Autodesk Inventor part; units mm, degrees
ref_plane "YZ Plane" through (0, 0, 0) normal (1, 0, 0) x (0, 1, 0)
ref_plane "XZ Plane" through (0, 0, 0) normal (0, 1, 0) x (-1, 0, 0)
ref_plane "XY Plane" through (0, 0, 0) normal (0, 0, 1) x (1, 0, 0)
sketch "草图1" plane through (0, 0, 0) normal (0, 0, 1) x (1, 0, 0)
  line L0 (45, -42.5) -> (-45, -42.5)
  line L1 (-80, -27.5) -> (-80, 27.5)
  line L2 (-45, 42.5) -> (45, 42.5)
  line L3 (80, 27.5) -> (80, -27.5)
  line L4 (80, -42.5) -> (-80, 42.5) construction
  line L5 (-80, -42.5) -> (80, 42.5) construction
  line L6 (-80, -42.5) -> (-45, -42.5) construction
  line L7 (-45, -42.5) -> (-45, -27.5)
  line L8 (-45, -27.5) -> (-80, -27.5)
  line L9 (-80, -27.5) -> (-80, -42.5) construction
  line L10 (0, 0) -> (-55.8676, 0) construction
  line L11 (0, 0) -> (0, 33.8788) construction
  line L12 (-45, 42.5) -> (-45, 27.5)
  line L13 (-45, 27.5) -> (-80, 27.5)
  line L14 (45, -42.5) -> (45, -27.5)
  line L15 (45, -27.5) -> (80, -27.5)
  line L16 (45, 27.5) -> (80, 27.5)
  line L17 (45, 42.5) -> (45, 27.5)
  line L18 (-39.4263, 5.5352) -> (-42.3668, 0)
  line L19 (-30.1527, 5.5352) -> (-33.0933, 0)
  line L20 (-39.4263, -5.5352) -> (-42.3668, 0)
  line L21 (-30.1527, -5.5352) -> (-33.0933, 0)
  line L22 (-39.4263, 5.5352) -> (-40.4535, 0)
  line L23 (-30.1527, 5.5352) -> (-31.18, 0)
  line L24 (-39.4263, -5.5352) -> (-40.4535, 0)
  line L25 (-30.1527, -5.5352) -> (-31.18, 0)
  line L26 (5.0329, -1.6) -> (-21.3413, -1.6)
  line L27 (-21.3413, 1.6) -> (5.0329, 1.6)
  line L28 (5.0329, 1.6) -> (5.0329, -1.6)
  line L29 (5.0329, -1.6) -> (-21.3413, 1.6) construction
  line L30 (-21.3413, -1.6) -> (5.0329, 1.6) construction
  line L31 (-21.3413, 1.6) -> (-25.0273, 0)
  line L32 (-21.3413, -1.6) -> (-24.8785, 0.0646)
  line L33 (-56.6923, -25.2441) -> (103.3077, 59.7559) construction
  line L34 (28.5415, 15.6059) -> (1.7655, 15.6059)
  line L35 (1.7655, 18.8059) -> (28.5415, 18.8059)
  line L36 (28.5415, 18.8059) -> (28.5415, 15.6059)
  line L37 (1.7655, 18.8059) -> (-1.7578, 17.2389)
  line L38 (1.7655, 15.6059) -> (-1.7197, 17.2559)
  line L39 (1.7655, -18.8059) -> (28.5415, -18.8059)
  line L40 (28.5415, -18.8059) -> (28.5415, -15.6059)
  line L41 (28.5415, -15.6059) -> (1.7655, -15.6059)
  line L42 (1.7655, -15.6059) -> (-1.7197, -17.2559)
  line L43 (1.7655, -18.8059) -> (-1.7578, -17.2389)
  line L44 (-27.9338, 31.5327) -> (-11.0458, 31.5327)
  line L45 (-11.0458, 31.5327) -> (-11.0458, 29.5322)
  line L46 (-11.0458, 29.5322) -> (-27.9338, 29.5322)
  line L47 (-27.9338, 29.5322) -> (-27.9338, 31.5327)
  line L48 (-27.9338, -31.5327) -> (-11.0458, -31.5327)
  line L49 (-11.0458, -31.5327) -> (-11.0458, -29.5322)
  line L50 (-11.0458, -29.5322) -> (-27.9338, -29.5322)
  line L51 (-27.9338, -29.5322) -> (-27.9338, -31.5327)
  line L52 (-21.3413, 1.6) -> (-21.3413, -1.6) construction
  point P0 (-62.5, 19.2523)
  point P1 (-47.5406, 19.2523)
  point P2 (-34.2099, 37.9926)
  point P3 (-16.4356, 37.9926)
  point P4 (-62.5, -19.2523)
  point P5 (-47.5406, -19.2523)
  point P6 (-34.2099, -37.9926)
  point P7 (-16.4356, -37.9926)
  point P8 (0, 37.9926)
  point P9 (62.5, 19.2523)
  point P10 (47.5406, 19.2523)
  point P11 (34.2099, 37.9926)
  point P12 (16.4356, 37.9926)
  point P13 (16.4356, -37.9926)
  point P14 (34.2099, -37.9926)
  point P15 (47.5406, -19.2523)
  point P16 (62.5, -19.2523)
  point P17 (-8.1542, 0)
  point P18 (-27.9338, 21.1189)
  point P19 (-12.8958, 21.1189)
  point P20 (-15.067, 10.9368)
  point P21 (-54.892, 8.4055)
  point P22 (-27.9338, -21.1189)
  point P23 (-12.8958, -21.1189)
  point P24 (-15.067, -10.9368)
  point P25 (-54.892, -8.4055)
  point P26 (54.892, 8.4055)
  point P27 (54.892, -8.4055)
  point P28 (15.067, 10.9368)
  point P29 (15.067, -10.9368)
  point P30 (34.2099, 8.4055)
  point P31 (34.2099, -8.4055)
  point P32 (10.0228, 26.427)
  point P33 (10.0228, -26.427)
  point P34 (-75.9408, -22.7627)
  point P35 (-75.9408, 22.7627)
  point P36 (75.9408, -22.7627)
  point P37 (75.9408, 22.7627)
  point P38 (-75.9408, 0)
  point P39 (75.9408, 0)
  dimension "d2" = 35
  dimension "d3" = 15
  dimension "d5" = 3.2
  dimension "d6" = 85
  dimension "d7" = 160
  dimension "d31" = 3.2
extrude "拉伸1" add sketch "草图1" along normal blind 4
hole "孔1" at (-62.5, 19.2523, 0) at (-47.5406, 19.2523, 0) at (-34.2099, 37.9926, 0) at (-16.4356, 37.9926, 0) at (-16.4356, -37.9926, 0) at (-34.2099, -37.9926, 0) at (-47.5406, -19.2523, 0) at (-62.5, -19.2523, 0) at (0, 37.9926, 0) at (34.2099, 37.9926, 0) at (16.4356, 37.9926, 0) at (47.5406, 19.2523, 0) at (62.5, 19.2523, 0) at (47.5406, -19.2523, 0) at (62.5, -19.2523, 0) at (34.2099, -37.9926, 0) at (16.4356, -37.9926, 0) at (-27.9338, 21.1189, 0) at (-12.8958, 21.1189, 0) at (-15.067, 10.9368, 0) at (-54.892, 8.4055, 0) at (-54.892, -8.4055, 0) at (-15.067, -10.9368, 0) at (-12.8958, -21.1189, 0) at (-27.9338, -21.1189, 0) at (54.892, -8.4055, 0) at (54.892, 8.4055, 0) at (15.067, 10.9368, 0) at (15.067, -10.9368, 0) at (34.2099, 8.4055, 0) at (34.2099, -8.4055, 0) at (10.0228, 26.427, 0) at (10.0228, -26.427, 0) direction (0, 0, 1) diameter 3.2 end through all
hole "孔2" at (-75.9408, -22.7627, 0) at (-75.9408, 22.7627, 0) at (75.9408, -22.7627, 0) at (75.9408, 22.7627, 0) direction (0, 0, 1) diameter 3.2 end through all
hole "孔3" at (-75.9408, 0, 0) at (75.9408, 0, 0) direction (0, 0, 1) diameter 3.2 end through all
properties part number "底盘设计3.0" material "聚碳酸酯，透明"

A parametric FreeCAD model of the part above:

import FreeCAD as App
import Part
import Sketcher

V = App.Vector
Q = App.Units.Quantity


def add_polygon(sketch, points):
    """Adds a closed chain of lines whose ends are joined by coincident constraints."""
    first, n = sketch.GeometryCount, len(points)
    for a, b in zip(points, points[1:] + points[:1]):
        sketch.addGeometry(Part.LineSegment(App.Vector(*a, 0), App.Vector(*b, 0)), False)
    for i in range(n):
        sketch.addConstraint(Sketcher.Constraint("Coincident", first + i, 2, first + (i + 1) % n, 1))

doc = App.newDocument("Part")
body = doc.addObject("PartDesign::Body", "Body")

sketch1 = body.newObject("Sketcher::SketchObject", "Sketch")
sketch1.AttachmentSupport = (doc.getObject("XY_Plane"), [""])
sketch1.MapMode = "FlatFace"
add_polygon(sketch1, [(-45, -42.5), (45, -42.5), (45, -27.5), (80, -27.5), (80, 27.5), (45, 27.5), (45, 42.5), (-45, 42.5), (-45, 27.5), (-80, 27.5), (-80, -27.5), (-45, -27.5)])
add_polygon(sketch1, [(-11, -31.5), (-27.9, -31.5), (-27.9, -29.5), (-11, -29.5)])
add_polygon(sketch1, [(28.5, -18.8), (1.8, -18.8), (-1.7, -17.3), (1.8, -15.6), (28.5, -15.6)])
add_polygon(sketch1, [(-42.4, 0), (-39.4, 5.5), (-40.5, 0), (-39.4, -5.5)])
add_polygon(sketch1, [(-33.1, 0), (-30.2, 5.5), (-31.2, 0), (-30.2, -5.5)])
add_polygon(sketch1, [(5, 1.6), (5, -1.6), (-21.3, -1.6), (-24.9, 0.1), (-21.3, 1.6)])
add_polygon(sketch1, [(-27.9, 29.5), (-27.9, 31.5), (-11, 31.5), (-11, 29.5)])
add_polygon(sketch1, [(28.5, 18.8), (28.5, 15.6), (1.8, 15.6), (-1.7, 17.3), (1.8, 18.8)])
sketch1.addConstraint(Sketcher.Constraint("Horizontal", 0))
sketch1.addConstraint(Sketcher.Constraint("Vertical", 1))
sketch1.addConstraint(Sketcher.Constraint("Horizontal", 2))
sketch1.addConstraint(Sketcher.Constraint("Vertical", 3))
sketch1.addConstraint(Sketcher.Constraint("Horizontal", 4))
sketch1.addConstraint(Sketcher.Constraint("Vertical", 5))
sketch1.addConstraint(Sketcher.Constraint("Horizontal", 6))
sketch1.addConstraint(Sketcher.Constraint("Vertical", 7))
sketch1.addConstraint(Sketcher.Constraint("Horizontal", 8))
sketch1.addConstraint(Sketcher.Constraint("Vertical", 9))
sketch1.addConstraint(Sketcher.Constraint("Horizontal", 10))
sketch1.addConstraint(Sketcher.Constraint("Vertical", 11))
sketch1.addConstraint(Sketcher.Constraint("Horizontal", 12))
sketch1.addConstraint(Sketcher.Constraint("Vertical", 13))
sketch1.addConstraint(Sketcher.Constraint("Horizontal", 14))
sketch1.addConstraint(Sketcher.Constraint("Vertical", 15))
sketch1.addConstraint(Sketcher.Constraint("Horizontal", 16))
sketch1.addConstraint(Sketcher.Constraint("Horizontal", 19))
sketch1.addConstraint(Sketcher.Constraint("Vertical", 20))
sketch1.addConstraint(Sketcher.Constraint("Vertical", 29))
sketch1.addConstraint(Sketcher.Constraint("Horizontal", 30))
sketch1.addConstraint(Sketcher.Constraint("Horizontal", 33))
sketch1.addConstraint(Sketcher.Constraint("Vertical", 34))
sketch1.addConstraint(Sketcher.Constraint("Horizontal", 35))
sketch1.addConstraint(Sketcher.Constraint("Vertical", 36))
sketch1.addConstraint(Sketcher.Constraint("Horizontal", 37))
sketch1.addConstraint(Sketcher.Constraint("Vertical", 38))
sketch1.addConstraint(Sketcher.Constraint("Horizontal", 39))
sketch1.addConstraint(Sketcher.Constraint("Horizontal", 42))
sketch1.addConstraint(Sketcher.Constraint("Symmetric", 0, 2, 6, 2, -1, 1))
sketch1.addConstraint(Sketcher.Constraint("Symmetric", 2, 2, 8, 2, -1, 1))
sketch1.addConstraint(Sketcher.Constraint("Symmetric", 4, 2, 10, 2, -1, 1))
sketch1.addConstraint(Sketcher.Constraint("Symmetric", 4, 2, 7, 2, -2))
sketch1.addConstraint(Sketcher.Constraint("Symmetric", 21, 2, 23, 2, -1))
sketch1.addConstraint(Sketcher.Constraint("Symmetric", 25, 2, 27, 2, -1))
sketch1.addConstraint(Sketcher.Constraint("Symmetric", 30, 2, 32, 2, -1))
sketch1.addConstraint(Sketcher.Constraint("Symmetric", 12, 2, 34, 2, -1))
sketch1.addConstraint(Sketcher.Constraint("Symmetric", 14, 2, 36, 2, -1))
sketch1.addConstraint(Sketcher.Constraint("Symmetric", 19, 2, 38, 2, -1))
sketch1.addConstraint(Sketcher.Constraint("Symmetric", 17, 2, 40, 2, -1))
sketch1.addConstraint(Sketcher.Constraint("Symmetric", 16, 2, 41, 2, -1))
sketch1.addConstraint(Sketcher.Constraint("PointOnObject", 22, 2, -1))
sketch1.addConstraint(Sketcher.Constraint("PointOnObject", 24, 2, -1))
sketch1.addConstraint(Sketcher.Constraint("PointOnObject", 26, 2, -1))
sketch1.addConstraint(Sketcher.Constraint("PointOnObject", 28, 2, -1))
sketch1.addConstraint(Sketcher.Constraint("Parallel", 21, 25))
sketch1.addConstraint(Sketcher.Constraint("Parallel", 22, 26))
sketch1.addConstraint(Sketcher.Constraint("Horizontal", 21, 2, 25, 2))
sketch1.addConstraint(Sketcher.Constraint("Vertical", 16, 2, 18, 2))
sketch1.addConstraint(Sketcher.Constraint("Vertical", 18, 2, 39, 2))
sketch1.addConstraint(Sketcher.Constraint("Equal", 20, 29))
sketch1.addConstraint(Sketcher.Constraint("Equal", 18, 32))
sketch1.addConstraint(Sketcher.Constraint("DistanceX", 2, 1, 2, 2, 35.0))
sketch1.addConstraint(Sketcher.Constraint("DistanceY", 1, 1, 1, 2, 15.0))
sketch1.addConstraint(Sketcher.Constraint("DistanceY", 20, 2, 20, 1, 3.2))
sketch1.addConstraint(Sketcher.Constraint("DistanceY", 0, 2, 5, 2, 85.0))
sketch1.addConstraint(Sketcher.Constraint("DistanceX", 0, 1, 0, 2, 90.0))
sketch1.addConstraint(Sketcher.Constraint("Angle", 21, Q("62.0211 deg")))
sketch1.addConstraint(Sketcher.Constraint("DistanceX", 12, 2, 12, 1, 16.888))
sketch1.addConstraint(Sketcher.Constraint("DistanceX", 16, 2, 16, 1, 26.776))
sketch1.addConstraint(Sketcher.Constraint("DistanceX", 26, 2, -1, 1, 31.18))
sketch1.addConstraint(Sketcher.Constraint("DistanceY", 16, 2, 17, 2, 1.55))
sketch1.addConstraint(Sketcher.Constraint("Distance", 18, 3.856))
sketch1.addConstraint(Sketcher.Constraint("DistanceX", 30, 2, 30, 1, 26.3742))
sketch1.addConstraint(Sketcher.Constraint("DistanceY", 13, 1, 13, 2, 2.0005))
sketch1.addConstraint(Sketcher.Constraint("DistanceY", 16, 2, -1, 1, 18.806))
sketch1.addConstraint(Sketcher.Constraint("DistanceX", -1, 1, 29, 2, 5.033))
sketch1.addConstraint(Sketcher.Constraint("DistanceY", 12, 2, 21, 2, 37.068))
sketch1.addConstraint(Sketcher.Constraint("DistanceY", 13, 2, 23, 2, 23.997))
sketch1.addConstraint(Sketcher.Constraint("DistanceX", 24, 2, 25, 2, 12.214))
sketch1.addConstraint(Sketcher.Constraint("DistanceX", 28, 2, 30, 2, 11.752))
sketch1.addConstraint(Sketcher.Constraint("DistanceX", 25, 2, 34, 2, 2.219))
sketch1.addConstraint(Sketcher.Constraint("DistanceX", 36, 2, 40, 2, 9.326))
sketch1.addConstraint(Sketcher.Constraint("Distance", 31, 3.9093))
pad1 = body.newObject("PartDesign::Pad", "Pad")
pad1.Profile = sketch1
pad1.Length = 4

sketch2 = body.newObject("Sketcher::SketchObject", "Sketch001")
sketch2.AttachmentSupport = (doc.getObject("XY_Plane"), [""])
sketch2.MapMode = "FlatFace"
sketch2.addGeometry(Part.Circle(V(-62.5, 19.3, 0), V(0, 0, 1), 1.6), False)
sketch2.addGeometry(Part.Circle(V(-47.5, 19.3, 0), V(0, 0, 1), 1.6), False)
sketch2.addGeometry(Part.Circle(V(-34.2, 38, 0), V(0, 0, 1), 1.6), False)
sketch2.addGeometry(Part.Circle(V(-16.4, 38, 0), V(0, 0, 1), 1.6), False)
sketch2.addGeometry(Part.Circle(V(-16.4, -38, 0), V(0, 0, 1), 1.6), False)
sketch2.addGeometry(Part.Circle(V(-34.2, -38, 0), V(0, 0, 1), 1.6), False)
sketch2.addGeometry(Part.Circle(V(-47.5, -19.3, 0), V(0, 0, 1), 1.6), False)
sketch2.addGeometry(Part.Circle(V(-62.5, -19.3, 0), V(0, 0, 1), 1.6), False)
sketch2.addGeometry(Part.Circle(V(0, 38, 0), V(0, 0, 1), 1.6), False)
sketch2.addGeometry(Part.Circle(V(34.2, 38, 0), V(0, 0, 1), 1.6), False)
sketch2.addGeometry(Part.Circle(V(16.4, 38, 0), V(0, 0, 1), 1.6), False)
sketch2.addGeometry(Part.Circle(V(47.5, 19.3, 0), V(0, 0, 1), 1.6), False)
sketch2.addGeometry(Part.Circle(V(62.5, 19.3, 0), V(0, 0, 1), 1.6), False)
sketch2.addGeometry(Part.Circle(V(47.5, -19.3, 0), V(0, 0, 1), 1.6), False)
sketch2.addGeometry(Part.Circle(V(62.5, -19.3, 0), V(0, 0, 1), 1.6), False)
sketch2.addGeometry(Part.Circle(V(34.2, -38, 0), V(0, 0, 1), 1.6), False)
sketch2.addGeometry(Part.Circle(V(16.4, -38, 0), V(0, 0, 1), 1.6), False)
sketch2.addGeometry(Part.Circle(V(-27.9, 21.1, 0), V(0, 0, 1), 1.6), False)
sketch2.addGeometry(Part.Circle(V(-12.9, 21.1, 0), V(0, 0, 1), 1.6), False)
sketch2.addGeometry(Part.Circle(V(-15.1, 10.9, 0), V(0, 0, 1), 1.6), False)
sketch2.addGeometry(Part.Circle(V(-54.9, 8.4, 0), V(0, 0, 1), 1.6), False)
sketch2.addGeometry(Part.Circle(V(-54.9, -8.4, 0), V(0, 0, 1), 1.6), False)
sketch2.addGeometry(Part.Circle(V(-15.1, -10.9, 0), V(0, 0, 1), 1.6), False)
sketch2.addGeometry(Part.Circle(V(-12.9, -21.1, 0), V(0, 0, 1), 1.6), False)
sketch2.addGeometry(Part.Circle(V(-27.9, -21.1, 0), V(0, 0, 1), 1.6), False)
sketch2.addGeometry(Part.Circle(V(54.9, -8.4, 0), V(0, 0, 1), 1.6), False)
sketch2.addGeometry(Part.Circle(V(54.9, 8.4, 0), V(0, 0, 1), 1.6), False)
sketch2.addGeometry(Part.Circle(V(15.1, 10.9, 0), V(0, 0, 1), 1.6), False)
sketch2.addGeometry(Part.Circle(V(15.1, -10.9, 0), V(0, 0, 1), 1.6), False)
sketch2.addGeometry(Part.Circle(V(34.2, 8.4, 0), V(0, 0, 1), 1.6), False)
sketch2.addGeometry(Part.Circle(V(34.2, -8.4, 0), V(0, 0, 1), 1.6), False)
sketch2.addGeometry(Part.Circle(V(10, 26.4, 0), V(0, 0, 1), 1.6), False)
sketch2.addGeometry(Part.Circle(V(10, -26.4, 0), V(0, 0, 1), 1.6), False)
sketch2.addConstraint(Sketcher.Constraint("Equal", 0, 1))
sketch2.addConstraint(Sketcher.Constraint("Equal", 1, 2))
sketch2.addConstraint(Sketcher.Constraint("Equal", 2, 3))
sketch2.addConstraint(Sketcher.Constraint("Equal", 3, 4))
sketch2.addConstraint(Sketcher.Constraint("Equal", 4, 5))
sketch2.addConstraint(Sketcher.Constraint("Equal", 5, 6))
sketch2.addConstraint(Sketcher.Constraint("Equal", 6, 7))
sketch2.addConstraint(Sketcher.Constraint("Equal", 7, 8))
sketch2.addConstraint(Sketcher.Constraint("Equal", 8, 9))
sketch2.addConstraint(Sketcher.Constraint("Equal", 9, 10))
sketch2.addConstraint(Sketcher.Constraint("Equal", 10, 11))
sketch2.addConstraint(Sketcher.Constraint("Equal", 11, 12))
sketch2.addConstraint(Sketcher.Constraint("Equal", 12, 13))
sketch2.addConstraint(Sketcher.Constraint("Equal", 13, 14))
sketch2.addConstraint(Sketcher.Constraint("Equal", 14, 15))
sketch2.addConstraint(Sketcher.Constraint("Equal", 15, 16))
sketch2.addConstraint(Sketcher.Constraint("Equal", 16, 17))
sketch2.addConstraint(Sketcher.Constraint("Equal", 17, 18))
sketch2.addConstraint(Sketcher.Constraint("Equal", 18, 19))
sketch2.addConstraint(Sketcher.Constraint("Equal", 19, 20))
sketch2.addConstraint(Sketcher.Constraint("Equal", 20, 21))
sketch2.addConstraint(Sketcher.Constraint("Equal", 21, 22))
sketch2.addConstraint(Sketcher.Constraint("Equal", 22, 23))
sketch2.addConstraint(Sketcher.Constraint("Equal", 23, 24))
sketch2.addConstraint(Sketcher.Constraint("Equal", 24, 25))
sketch2.addConstraint(Sketcher.Constraint("Equal", 25, 26))
sketch2.addConstraint(Sketcher.Constraint("Equal", 26, 27))
sketch2.addConstraint(Sketcher.Constraint("Equal", 27, 28))
sketch2.addConstraint(Sketcher.Constraint("Equal", 28, 29))
sketch2.addConstraint(Sketcher.Constraint("Equal", 29, 30))
sketch2.addConstraint(Sketcher.Constraint("Equal", 30, 31))
sketch2.addConstraint(Sketcher.Constraint("Equal", 31, 32))
sketch2.addConstraint(Sketcher.Constraint("Symmetric", 5, 3, 9, 3, -1, 1))
sketch2.addConstraint(Sketcher.Constraint("Symmetric", 4, 3, 10, 3, -1, 1))
sketch2.addConstraint(Sketcher.Constraint("Symmetric", 6, 3, 11, 3, -1, 1))
sketch2.addConstraint(Sketcher.Constraint("Symmetric", 7, 3, 12, 3, -1, 1))
sketch2.addConstraint(Sketcher.Constraint("Symmetric", 1, 3, 13, 3, -1, 1))
sketch2.addConstraint(Sketcher.Constraint("Symmetric", 0, 3, 14, 3, -1, 1))
sketch2.addConstraint(Sketcher.Constraint("Symmetric", 2, 3, 15, 3, -1, 1))
sketch2.addConstraint(Sketcher.Constraint("Symmetric", 3, 3, 16, 3, -1, 1))
sketch2.addConstraint(Sketcher.Constraint("Symmetric", 20, 3, 25, 3, -1, 1))
sketch2.addConstraint(Sketcher.Constraint("Symmetric", 21, 3, 26, 3, -1, 1))
sketch2.addConstraint(Sketcher.Constraint("Symmetric", 22, 3, 27, 3, -1, 1))
sketch2.addConstraint(Sketcher.Constraint("Symmetric", 19, 3, 28, 3, -1, 1))
sketch2.addConstraint(Sketcher.Constraint("Symmetric", 2, 3, 9, 3, -2))
sketch2.addConstraint(Sketcher.Constraint("Symmetric", 3, 3, 10, 3, -2))
sketch2.addConstraint(Sketcher.Constraint("Symmetric", 1, 3, 11, 3, -2))
sketch2.addConstraint(Sketcher.Constraint("Symmetric", 0, 3, 12, 3, -2))
sketch2.addConstraint(Sketcher.Constraint("Symmetric", 21, 3, 25, 3, -2))
sketch2.addConstraint(Sketcher.Constraint("Symmetric", 19, 3, 27, 3, -2))
sketch2.addConstraint(Sketcher.Constraint("Symmetric", 18, 3, 23, 3, -1))
sketch2.addConstraint(Sketcher.Constraint("Symmetric", 17, 3, 24, 3, -1))
sketch2.addConstraint(Sketcher.Constraint("Symmetric", 29, 3, 30, 3, -1))
sketch2.addConstraint(Sketcher.Constraint("Symmetric", 31, 3, 32, 3, -1))
sketch2.addConstraint(Sketcher.Constraint("PointOnObject", 8, 3, -2))
sketch2.addConstraint(Sketcher.Constraint("Horizontal", 0, 3, 1, 3))
sketch2.addConstraint(Sketcher.Constraint("Horizontal", 2, 3, 3, 3))
sketch2.addConstraint(Sketcher.Constraint("Horizontal", 3, 3, 8, 3))
sketch2.addConstraint(Sketcher.Constraint("Horizontal", 17, 3, 18, 3))
sketch2.addConstraint(Sketcher.Constraint("Horizontal", 26, 3, 29, 3))
sketch2.addConstraint(Sketcher.Constraint("Vertical", 15, 3, 29, 3))
sketch2.addConstraint(Sketcher.Constraint("Diameter", 0, 3.2))
sketch2.addConstraint(Sketcher.Constraint("DistanceX", 0, 3, -1, 1, 62.5))
sketch2.addConstraint(Sketcher.Constraint("DistanceX", 2, 3, -1, 1, 34.21))
sketch2.addConstraint(Sketcher.Constraint("DistanceY", -1, 1, 17, 3, 21.119))
sketch2.addConstraint(Sketcher.Constraint("DistanceX", 19, 3, -1, 1, 15.067))
sketch2.addConstraint(Sketcher.Constraint("DistanceX", 20, 3, -1, 1, 54.892))
sketch2.addConstraint(Sketcher.Constraint("DistanceY", -1, 1, 31, 3, 26.427))
sketch2.addConstraint(Sketcher.Constraint("DistanceX", 1, 3, 3, 3, 31.105))
sketch2.addConstraint(Sketcher.Constraint("DistanceY", 4, 3, 1, 3, 57.245))
sketch2.addConstraint(Sketcher.Constraint("DistanceX", 2, 3, 17, 3, 6.276))
sketch2.addConstraint(Sketcher.Constraint("DistanceX", 17, 3, 18, 3, 15.038))
sketch2.addConstraint(Sketcher.Constraint("DistanceY", 19, 3, 18, 3, 10.182))
sketch2.addConstraint(Sketcher.Constraint("DistanceY", 21, 3, 20, 3, 16.811))
sketch2.addConstraint(Sketcher.Constraint("DistanceY", 15, 3, 25, 3, 29.587))
sketch2.addConstraint(Sketcher.Constraint("DistanceX", 31, 3, 9, 3, 24.187))
sketch2.addConstraint(Sketcher.Constraint("DistanceX", 1, 3, -1, 1, 47.5406))
doc.recompute()
hole = body.newObject("PartDesign::Hole", "Hole")
hole.Profile = sketch2
hole.ThreadType = "None"
hole.Diameter = 3.2
hole.DepthType = "ThroughAll"
hole.Reversed = True

sketch3 = body.newObject("Sketcher::SketchObject", "Sketch002")
sketch3.AttachmentSupport = (doc.getObject("XY_Plane"), [""])
sketch3.MapMode = "FlatFace"
sketch3.addGeometry(Part.Circle(V(-75.9, -22.8, 0), V(0, 0, 1), 1.6), False)
sketch3.addGeometry(Part.Circle(V(-75.9, 22.8, 0), V(0, 0, 1), 1.6), False)
sketch3.addGeometry(Part.Circle(V(75.9, -22.8, 0), V(0, 0, 1), 1.6), False)
sketch3.addGeometry(Part.Circle(V(75.9, 22.8, 0), V(0, 0, 1), 1.6), False)
sketch3.addConstraint(Sketcher.Constraint("Equal", 0, 1))
sketch3.addConstraint(Sketcher.Constraint("Equal", 1, 2))
sketch3.addConstraint(Sketcher.Constraint("Equal", 2, 3))
sketch3.addConstraint(Sketcher.Constraint("Symmetric", 1, 3, 2, 3, -1, 1))
sketch3.addConstraint(Sketcher.Constraint("Symmetric", 0, 3, 3, 3, -1, 1))
sketch3.addConstraint(Sketcher.Constraint("Symmetric", 0, 3, 2, 3, -2))
sketch3.addConstraint(Sketcher.Constraint("Diameter", 0, 3.2))
sketch3.addConstraint(Sketcher.Constraint("DistanceX", 0, 3, -1, 1, 75.9408))
sketch3.addConstraint(Sketcher.Constraint("DistanceY", 0, 3, -1, 1, 22.7627))
doc.recompute()
hole2 = body.newObject("PartDesign::Hole", "Hole001")
hole2.Profile = sketch3
hole2.ThreadType = "None"
hole2.Diameter = 3.2
hole2.DepthType = "ThroughAll"
hole2.Reversed = True

sketch4 = body.newObject("Sketcher::SketchObject", "Sketch003")
sketch4.AttachmentSupport = (doc.getObject("XY_Plane"), [""])
sketch4.MapMode = "FlatFace"
sketch4.addGeometry(Part.Circle(V(-75.9, 0, 0), V(0, 0, 1), 1.6), False)
sketch4.addGeometry(Part.Circle(V(75.9, 0, 0), V(0, 0, 1), 1.6), False)
sketch4.addConstraint(Sketcher.Constraint("Equal", 0, 1))
sketch4.addConstraint(Sketcher.Constraint("Symmetric", 0, 3, 1, 3, -1, 1))
sketch4.addConstraint(Sketcher.Constraint("PointOnObject", 0, 3, -1))
sketch4.addConstraint(Sketcher.Constraint("Diameter", 0, 3.2))
sketch4.addConstraint(Sketcher.Constraint("DistanceX", 0, 3, -1, 1, 75.9408))
doc.recompute()
hole3 = body.newObject("PartDesign::Hole", "Hole002")
hole3.Profile = sketch4
hole3.ThreadType = "None"
hole3.Diameter = 3.2
hole3.DepthType = "ThroughAll"
hole3.Reversed = True

doc.recompute()
